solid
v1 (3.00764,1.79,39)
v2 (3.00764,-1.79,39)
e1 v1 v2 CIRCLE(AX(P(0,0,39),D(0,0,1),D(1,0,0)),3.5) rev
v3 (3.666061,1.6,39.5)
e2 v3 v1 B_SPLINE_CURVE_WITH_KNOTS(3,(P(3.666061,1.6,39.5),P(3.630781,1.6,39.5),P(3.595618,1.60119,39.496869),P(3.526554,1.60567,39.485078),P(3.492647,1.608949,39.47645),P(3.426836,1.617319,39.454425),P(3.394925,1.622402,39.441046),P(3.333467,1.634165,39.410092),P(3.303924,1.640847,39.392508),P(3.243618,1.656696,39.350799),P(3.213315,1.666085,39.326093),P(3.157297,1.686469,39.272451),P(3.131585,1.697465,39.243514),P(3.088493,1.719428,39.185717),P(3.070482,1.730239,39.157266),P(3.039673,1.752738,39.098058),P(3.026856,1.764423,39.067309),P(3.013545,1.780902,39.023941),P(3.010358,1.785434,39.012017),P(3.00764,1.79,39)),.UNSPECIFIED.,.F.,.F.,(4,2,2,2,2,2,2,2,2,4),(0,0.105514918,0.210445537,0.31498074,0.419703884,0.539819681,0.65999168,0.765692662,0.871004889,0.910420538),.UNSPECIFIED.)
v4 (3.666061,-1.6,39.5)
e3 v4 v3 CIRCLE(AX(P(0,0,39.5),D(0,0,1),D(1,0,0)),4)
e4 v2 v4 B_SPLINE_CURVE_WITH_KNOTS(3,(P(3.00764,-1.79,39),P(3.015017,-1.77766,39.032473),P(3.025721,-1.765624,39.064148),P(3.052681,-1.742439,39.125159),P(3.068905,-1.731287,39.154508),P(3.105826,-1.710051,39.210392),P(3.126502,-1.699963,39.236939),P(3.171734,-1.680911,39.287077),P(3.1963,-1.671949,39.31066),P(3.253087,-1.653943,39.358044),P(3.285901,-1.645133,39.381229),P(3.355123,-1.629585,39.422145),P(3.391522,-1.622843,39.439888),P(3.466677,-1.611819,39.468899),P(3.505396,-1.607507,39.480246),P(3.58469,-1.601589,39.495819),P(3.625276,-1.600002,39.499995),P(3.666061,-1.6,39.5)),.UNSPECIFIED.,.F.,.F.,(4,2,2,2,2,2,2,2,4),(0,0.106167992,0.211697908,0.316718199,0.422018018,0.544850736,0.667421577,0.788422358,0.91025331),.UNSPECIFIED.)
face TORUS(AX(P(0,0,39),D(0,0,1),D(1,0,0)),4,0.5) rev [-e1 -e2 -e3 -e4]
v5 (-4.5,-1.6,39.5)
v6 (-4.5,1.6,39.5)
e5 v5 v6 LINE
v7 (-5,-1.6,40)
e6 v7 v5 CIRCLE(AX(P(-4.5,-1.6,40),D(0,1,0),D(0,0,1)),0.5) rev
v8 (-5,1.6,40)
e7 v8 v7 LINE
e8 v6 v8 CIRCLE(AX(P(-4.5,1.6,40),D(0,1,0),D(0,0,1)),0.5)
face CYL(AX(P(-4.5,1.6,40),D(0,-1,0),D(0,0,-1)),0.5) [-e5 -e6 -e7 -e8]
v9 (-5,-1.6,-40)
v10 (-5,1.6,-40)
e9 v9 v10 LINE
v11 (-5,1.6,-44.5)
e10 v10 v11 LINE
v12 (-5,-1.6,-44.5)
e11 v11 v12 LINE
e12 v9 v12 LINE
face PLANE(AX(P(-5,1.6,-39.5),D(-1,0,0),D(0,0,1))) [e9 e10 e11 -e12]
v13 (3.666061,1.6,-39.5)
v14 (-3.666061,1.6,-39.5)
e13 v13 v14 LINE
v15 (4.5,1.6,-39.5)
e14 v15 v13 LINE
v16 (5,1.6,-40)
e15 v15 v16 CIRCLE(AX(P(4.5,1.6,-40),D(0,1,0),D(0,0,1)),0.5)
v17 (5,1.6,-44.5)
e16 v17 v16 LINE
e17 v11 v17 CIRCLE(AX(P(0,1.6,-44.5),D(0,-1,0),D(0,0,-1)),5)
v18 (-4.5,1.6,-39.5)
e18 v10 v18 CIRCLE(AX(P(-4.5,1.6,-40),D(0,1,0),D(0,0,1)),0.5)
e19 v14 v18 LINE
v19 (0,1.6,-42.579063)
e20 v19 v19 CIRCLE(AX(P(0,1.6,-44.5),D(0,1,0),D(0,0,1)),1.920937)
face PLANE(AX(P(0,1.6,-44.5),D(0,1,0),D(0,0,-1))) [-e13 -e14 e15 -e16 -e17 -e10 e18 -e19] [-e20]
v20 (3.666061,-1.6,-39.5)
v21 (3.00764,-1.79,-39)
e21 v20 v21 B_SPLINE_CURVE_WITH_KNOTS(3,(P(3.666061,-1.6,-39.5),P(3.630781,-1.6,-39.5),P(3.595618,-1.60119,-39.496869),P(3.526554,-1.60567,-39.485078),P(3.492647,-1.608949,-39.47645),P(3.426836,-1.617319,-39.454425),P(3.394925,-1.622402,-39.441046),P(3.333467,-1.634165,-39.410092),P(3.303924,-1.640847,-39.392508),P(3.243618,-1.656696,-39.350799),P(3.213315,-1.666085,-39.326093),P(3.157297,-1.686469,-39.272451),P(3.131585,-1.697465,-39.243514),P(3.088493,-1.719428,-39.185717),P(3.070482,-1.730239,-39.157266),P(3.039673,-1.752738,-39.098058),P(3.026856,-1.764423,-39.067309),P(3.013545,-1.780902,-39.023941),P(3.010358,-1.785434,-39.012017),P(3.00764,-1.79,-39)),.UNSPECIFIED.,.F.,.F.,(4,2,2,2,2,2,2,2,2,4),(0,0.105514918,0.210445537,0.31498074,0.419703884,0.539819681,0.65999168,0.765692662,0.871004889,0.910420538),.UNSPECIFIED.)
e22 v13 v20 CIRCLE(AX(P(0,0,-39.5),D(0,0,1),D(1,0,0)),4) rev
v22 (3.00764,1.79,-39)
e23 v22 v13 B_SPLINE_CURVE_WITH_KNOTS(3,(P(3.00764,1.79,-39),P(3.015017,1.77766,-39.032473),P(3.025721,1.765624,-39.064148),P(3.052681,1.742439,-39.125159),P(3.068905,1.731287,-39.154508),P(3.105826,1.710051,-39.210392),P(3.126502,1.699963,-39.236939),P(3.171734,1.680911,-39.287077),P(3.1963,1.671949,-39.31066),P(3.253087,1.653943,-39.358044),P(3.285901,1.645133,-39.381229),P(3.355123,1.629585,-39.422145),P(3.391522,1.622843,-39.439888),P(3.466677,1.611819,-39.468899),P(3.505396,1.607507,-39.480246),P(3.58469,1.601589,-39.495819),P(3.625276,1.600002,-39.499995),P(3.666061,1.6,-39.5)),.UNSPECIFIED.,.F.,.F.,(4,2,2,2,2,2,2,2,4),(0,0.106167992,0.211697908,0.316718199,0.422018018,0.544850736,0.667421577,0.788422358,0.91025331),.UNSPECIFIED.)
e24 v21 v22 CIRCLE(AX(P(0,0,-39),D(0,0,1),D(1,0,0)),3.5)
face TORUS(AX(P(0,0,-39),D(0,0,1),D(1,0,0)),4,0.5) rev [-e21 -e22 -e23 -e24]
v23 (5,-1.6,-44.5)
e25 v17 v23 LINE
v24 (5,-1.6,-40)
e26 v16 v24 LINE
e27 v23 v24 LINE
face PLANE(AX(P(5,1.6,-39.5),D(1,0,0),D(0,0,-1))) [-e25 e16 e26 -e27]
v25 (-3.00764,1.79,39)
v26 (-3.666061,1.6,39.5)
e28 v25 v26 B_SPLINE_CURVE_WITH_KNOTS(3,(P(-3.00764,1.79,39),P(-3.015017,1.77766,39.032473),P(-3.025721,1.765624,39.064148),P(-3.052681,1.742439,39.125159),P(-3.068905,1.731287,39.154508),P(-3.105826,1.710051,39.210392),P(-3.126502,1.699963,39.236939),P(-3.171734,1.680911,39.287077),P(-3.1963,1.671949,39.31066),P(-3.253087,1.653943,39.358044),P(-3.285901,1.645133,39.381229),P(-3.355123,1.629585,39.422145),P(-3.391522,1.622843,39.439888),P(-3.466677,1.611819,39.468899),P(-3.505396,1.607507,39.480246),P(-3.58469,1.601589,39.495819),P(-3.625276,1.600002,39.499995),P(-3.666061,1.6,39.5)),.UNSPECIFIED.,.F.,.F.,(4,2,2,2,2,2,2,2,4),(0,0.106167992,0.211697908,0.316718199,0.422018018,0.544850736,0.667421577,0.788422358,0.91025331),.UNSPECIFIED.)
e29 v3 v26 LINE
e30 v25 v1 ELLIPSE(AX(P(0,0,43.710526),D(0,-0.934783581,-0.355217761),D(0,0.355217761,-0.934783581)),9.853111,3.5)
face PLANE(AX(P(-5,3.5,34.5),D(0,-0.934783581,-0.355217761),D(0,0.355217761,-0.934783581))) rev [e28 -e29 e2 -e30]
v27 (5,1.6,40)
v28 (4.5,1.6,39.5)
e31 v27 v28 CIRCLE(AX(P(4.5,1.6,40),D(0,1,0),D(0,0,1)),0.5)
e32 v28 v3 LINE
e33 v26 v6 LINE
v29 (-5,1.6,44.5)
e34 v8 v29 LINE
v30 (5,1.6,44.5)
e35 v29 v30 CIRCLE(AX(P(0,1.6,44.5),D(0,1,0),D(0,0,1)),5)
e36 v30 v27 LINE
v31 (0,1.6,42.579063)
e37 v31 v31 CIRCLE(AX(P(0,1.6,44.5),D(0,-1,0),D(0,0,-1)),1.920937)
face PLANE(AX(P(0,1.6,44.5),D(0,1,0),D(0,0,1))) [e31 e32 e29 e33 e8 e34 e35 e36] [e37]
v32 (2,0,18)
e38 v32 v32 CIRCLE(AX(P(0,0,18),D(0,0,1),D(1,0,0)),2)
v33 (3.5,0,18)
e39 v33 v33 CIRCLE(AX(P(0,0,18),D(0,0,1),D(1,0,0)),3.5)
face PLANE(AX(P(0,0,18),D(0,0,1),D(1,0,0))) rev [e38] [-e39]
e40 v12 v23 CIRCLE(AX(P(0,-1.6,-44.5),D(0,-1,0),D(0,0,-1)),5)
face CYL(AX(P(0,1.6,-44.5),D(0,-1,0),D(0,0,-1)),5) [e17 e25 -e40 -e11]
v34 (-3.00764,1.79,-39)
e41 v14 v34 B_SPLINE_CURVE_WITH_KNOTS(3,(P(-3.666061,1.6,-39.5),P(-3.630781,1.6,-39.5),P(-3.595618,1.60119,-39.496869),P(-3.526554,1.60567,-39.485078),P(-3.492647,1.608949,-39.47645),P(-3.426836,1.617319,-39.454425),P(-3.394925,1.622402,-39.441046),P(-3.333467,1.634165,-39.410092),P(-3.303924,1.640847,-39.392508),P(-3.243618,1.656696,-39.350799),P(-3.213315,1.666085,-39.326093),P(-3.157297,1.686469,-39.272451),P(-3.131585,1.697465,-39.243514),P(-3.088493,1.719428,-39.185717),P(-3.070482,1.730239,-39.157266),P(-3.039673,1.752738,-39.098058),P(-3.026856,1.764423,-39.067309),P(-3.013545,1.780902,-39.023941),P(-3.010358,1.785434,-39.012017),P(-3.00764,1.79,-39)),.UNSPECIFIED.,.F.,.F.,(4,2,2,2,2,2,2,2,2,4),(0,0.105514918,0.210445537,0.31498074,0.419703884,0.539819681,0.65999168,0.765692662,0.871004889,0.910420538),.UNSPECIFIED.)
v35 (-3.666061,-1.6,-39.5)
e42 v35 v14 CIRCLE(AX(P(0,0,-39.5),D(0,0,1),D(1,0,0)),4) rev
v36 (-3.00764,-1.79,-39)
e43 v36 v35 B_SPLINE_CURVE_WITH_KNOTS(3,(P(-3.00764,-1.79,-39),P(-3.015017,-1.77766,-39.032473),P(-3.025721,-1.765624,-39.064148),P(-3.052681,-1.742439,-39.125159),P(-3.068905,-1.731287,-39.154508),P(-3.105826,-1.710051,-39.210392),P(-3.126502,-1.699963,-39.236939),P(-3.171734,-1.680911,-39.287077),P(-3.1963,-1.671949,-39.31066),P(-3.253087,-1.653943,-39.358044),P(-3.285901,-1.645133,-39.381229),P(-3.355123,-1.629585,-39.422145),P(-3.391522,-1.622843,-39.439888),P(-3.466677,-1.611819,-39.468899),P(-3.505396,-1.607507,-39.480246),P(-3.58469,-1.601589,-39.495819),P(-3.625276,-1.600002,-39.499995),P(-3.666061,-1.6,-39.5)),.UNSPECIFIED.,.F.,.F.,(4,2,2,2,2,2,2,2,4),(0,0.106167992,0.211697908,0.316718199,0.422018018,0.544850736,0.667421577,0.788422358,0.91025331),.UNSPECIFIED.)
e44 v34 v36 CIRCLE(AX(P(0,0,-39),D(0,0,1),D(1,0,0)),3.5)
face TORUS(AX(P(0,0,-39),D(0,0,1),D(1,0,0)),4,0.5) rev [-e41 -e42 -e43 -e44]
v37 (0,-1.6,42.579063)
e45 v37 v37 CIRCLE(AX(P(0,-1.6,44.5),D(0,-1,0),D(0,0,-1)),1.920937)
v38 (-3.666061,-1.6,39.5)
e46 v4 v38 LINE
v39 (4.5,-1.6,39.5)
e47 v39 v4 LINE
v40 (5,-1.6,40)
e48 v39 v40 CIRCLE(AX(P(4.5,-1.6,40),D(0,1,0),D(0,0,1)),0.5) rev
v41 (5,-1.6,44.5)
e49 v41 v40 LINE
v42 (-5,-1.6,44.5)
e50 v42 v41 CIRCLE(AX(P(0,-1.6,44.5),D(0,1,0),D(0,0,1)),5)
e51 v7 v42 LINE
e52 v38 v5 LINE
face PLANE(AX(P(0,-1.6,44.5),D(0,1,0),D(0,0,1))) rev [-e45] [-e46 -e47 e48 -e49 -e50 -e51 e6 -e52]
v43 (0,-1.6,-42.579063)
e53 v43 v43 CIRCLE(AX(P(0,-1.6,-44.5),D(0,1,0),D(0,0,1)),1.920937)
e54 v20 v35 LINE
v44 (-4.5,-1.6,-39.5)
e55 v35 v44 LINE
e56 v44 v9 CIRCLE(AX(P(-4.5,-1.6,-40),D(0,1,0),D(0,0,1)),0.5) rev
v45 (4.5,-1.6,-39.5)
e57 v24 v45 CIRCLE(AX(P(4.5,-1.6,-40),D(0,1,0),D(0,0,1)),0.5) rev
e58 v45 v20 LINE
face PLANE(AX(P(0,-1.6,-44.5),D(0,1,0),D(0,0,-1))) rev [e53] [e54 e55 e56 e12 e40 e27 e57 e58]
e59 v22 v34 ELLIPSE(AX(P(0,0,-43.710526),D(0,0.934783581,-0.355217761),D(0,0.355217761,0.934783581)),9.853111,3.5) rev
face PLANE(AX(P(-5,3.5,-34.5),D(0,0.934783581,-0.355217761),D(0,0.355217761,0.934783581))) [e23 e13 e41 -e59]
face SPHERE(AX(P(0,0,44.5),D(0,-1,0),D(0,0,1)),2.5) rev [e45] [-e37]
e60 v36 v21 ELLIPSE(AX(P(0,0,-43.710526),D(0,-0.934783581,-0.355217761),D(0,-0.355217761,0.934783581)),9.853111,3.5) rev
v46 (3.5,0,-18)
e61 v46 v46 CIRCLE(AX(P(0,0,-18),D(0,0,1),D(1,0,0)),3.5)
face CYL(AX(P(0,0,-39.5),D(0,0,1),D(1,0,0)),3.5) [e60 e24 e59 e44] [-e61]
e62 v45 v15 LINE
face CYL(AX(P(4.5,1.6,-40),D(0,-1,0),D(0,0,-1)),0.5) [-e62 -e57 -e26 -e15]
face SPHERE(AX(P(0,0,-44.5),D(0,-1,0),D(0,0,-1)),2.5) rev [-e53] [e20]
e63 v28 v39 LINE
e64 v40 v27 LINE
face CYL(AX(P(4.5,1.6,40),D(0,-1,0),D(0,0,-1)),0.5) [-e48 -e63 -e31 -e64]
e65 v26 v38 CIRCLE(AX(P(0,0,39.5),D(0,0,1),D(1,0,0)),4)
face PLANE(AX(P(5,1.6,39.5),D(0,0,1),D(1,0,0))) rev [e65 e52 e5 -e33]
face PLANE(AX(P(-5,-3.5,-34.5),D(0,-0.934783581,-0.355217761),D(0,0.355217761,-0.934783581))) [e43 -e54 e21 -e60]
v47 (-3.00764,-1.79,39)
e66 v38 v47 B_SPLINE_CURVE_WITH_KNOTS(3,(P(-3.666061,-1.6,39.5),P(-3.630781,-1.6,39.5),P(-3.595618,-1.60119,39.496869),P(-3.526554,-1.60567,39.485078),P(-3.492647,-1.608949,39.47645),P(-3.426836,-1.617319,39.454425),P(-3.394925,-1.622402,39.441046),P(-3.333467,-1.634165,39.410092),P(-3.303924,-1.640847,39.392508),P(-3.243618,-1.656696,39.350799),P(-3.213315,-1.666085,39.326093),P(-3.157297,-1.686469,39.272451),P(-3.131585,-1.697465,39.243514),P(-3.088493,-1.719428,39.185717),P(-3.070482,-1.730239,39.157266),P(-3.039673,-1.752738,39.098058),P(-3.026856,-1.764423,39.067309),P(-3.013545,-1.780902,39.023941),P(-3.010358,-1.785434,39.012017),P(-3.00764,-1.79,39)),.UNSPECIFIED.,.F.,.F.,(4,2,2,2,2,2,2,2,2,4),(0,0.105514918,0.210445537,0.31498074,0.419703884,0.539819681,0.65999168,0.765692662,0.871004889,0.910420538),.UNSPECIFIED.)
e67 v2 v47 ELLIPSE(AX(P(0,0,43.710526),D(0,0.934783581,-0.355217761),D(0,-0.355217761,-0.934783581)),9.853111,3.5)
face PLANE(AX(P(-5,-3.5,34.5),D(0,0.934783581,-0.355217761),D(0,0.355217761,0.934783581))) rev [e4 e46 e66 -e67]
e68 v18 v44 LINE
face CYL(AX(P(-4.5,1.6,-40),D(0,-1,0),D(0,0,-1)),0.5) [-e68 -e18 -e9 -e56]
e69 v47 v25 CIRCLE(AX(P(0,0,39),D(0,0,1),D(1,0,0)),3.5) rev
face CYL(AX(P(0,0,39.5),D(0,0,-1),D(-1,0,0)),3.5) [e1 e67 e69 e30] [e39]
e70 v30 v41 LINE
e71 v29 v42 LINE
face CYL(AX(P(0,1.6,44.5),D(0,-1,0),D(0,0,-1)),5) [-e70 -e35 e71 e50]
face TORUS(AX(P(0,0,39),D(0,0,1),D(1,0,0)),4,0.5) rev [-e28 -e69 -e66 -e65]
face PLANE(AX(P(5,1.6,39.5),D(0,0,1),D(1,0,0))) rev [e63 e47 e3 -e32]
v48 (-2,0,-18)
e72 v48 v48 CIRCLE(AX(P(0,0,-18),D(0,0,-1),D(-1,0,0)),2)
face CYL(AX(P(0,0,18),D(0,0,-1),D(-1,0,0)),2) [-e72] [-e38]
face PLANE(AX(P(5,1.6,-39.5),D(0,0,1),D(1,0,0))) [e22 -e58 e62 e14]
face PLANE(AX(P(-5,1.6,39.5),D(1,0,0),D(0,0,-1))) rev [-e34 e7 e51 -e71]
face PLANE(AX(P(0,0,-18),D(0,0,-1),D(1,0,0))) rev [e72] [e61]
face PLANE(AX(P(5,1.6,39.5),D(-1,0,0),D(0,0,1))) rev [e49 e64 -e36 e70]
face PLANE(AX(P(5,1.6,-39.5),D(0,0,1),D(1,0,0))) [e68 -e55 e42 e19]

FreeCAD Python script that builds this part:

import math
import FreeCAD as App
import Part
import Sketcher
from FreeCAD import Vector


def edges_at(feature, points):
    """Names of the edges that pass closest to the given points."""
    edges = feature.Shape.Edges
    near = lambda p: min(range(len(edges)), key=lambda i: edges[i].distToShape(Part.Vertex(*p))[0])
    return sorted({f"Edge{near(p) + 1}" for p in points})


def add_polygon(sketch, points):
    """Adds a closed chain of lines whose ends are joined by coincident constraints."""
    first, n = sketch.GeometryCount, len(points)
    for a, b in zip(points, points[1:] + points[:1]):
        sketch.addGeometry(Part.LineSegment(App.Vector(*a, 0), App.Vector(*b, 0)), False)
    for i in range(n):
        sketch.addConstraint(Sketcher.Constraint("Coincident", first + i, 2, first + (i + 1) % n, 1))

doc = App.newDocument("Part")
params = doc.addObject("Spreadsheet::Sheet", "Params")
for row, (alias, value) in enumerate([
    ("sketch1_diameter", "4 mm"),
    ("pad1_length", "18 mm"),
    ("sketch2_diameter", "7 mm"),
    ("pad2_length", "21.5 mm"),
    ("sketch3_radius", "5 mm"),
    ("sketch3_height", "5 mm"),
    ("pad3_length", "3.2 mm"),
    ("sketch4_height", "5 mm"),
    ("sketch4_width", "1.9 mm"),
    ("pocket1_length", "12 mm"),
    ("fillet_radius", "0.5 mm"),
    ("sketch5_radius", "2.5 mm"),
    ("sketch5_width", "3.2 mm"),
    ("groove_angle", "360 deg"),
    ("fillet2_radius", "0.5 mm"),
], start=1):
    params.set(f"A{row}", alias)
    params.set(f"B{row}", "=" + value)
    params.setAlias(f"B{row}", alias)

body = doc.addObject("PartDesign::Body", "Body")

# Sketch on XY plane
sketch1 = body.newObject("Sketcher::SketchObject", "Sketch")
sketch1.AttachmentSupport = (doc.getObject("XY_Plane"), [""])
sketch1.MapMode = "FlatFace"
sketch1.addGeometry(Part.Circle(Vector(0, 0, 0), Vector(0, 0, 1), 2), False)
sketch1.addConstraint([
    Sketcher.Constraint("Coincident", 0, 3, -1, 1),
    Sketcher.Constraint("Diameter", 0, 4.0),
])
sketch1.setExpression("Constraints[1]", "Params.sketch1_diameter")
pad1 = body.newObject("PartDesign::Pad", "Pad")
pad1.Profile = sketch1
pad1.setExpression("Length", "Params.pad1_length")

# Sketch on XY plane
sketch2 = body.newObject("Sketcher::SketchObject", "Sketch001")
sketch2.AttachmentSupport = (doc.getObject("XY_Plane"), [""])
sketch2.MapMode = "FlatFace"
sketch2.AttachmentOffset = App.Placement(Vector(0, 0, 18), App.Rotation())
sketch2.addGeometry(Part.Circle(Vector(0, 0, 0), Vector(0, 0, 1), 3.5), False)
sketch2.addConstraint([
    Sketcher.Constraint("Coincident", 0, 3, -1, 1),
    Sketcher.Constraint("Diameter", 0, 7.0),
])
sketch2.setExpression("Constraints[1]", "Params.sketch2_diameter")
pad2 = body.newObject("PartDesign::Pad", "Pad001")
pad2.Profile = sketch2
pad2.setExpression("Length", "Params.pad2_length")

# Sketch on XZ plane
sketch3 = body.newObject("Sketcher::SketchObject", "Sketch002")
sketch3.AttachmentSupport = (doc.getObject("XZ_Plane"), [""])
sketch3.MapMode = "FlatFace"
sketch3.addGeometry([
    Part.LineSegment(Vector(5, 40, 0), Vector(-5, 40, 0)),
    Part.LineSegment(Vector(-5, 40, 0), Vector(-5, 44, 0)),
    Part.ArcOfCircle(Part.Circle(Vector(0, 44, 0), Vector(0, 0, 1), 5), math.radians(0), math.radians(180)),
    Part.LineSegment(Vector(5, 44, 0), Vector(5, 40, 0)),
], False)
sketch3.addConstraint([
    Sketcher.Constraint("Coincident", 0, 2, 1, 1),
    Sketcher.Constraint("Tangent", 1, 2, 2, 2),
    Sketcher.Constraint("Tangent", 2, 1, 3, 1),
    Sketcher.Constraint("Coincident", 3, 2, 0, 1),
    Sketcher.Constraint("Horizontal", 0),
    Sketcher.Constraint("Vertical", 1),
    Sketcher.Constraint("Vertical", 3),
    Sketcher.Constraint("PointOnObject", 2, 3, -2),
    Sketcher.Constraint("Radius", 2, 5.0),
    Sketcher.Constraint("DistanceY", 1, 1, 1, 2, 5.0),
    Sketcher.Constraint("DistanceY", -1, 1, 2, 3, 44.5),
])
sketch3.setExpression("Constraints[8]", "Params.sketch3_radius")
sketch3.setExpression("Constraints[9]", "Params.sketch3_height")
pad3 = body.newObject("PartDesign::Pad", "Pad002")
pad3.Profile = sketch3
pad3.setExpression("Length", "Params.pad3_length")
pad3.Midplane = True

# Sketch on YZ plane
sketch4 = body.newObject("Sketcher::SketchObject", "Sketch003")
sketch4.AttachmentSupport = (doc.getObject("YZ_Plane"), [""])
sketch4.MapMode = "FlatFace"
add_polygon(sketch4, [(-3.5, 34.5), (-1.6, 39.5), (-3.5, 39.5)])  # lines 0-2
add_polygon(sketch4, [(1.6, 39.5), (3.5, 34.5), (3.5, 39.5)])  # lines 3-5
sketch4.addConstraint([
    Sketcher.Constraint("Horizontal", 1),
    Sketcher.Constraint("Vertical", 2),
    Sketcher.Constraint("Vertical", 4),
    Sketcher.Constraint("Horizontal", 5),
    Sketcher.Constraint("Symmetric", 2, 2, 3, 2, -2),
    Sketcher.Constraint("Symmetric", 0, 2, 5, 2, -2),
    Sketcher.Constraint("DistanceY", 2, 2, 2, 1, 5.0),
    Sketcher.Constraint("DistanceX", 1, 2, 1, 1, 1.9),
    Sketcher.Constraint("DistanceX", 2, 2, 3, 2, 7.0),
    Sketcher.Constraint("DistanceY", -1, 1, 0, 2, 39.5),
])
sketch4.setExpression("Constraints[12]", "Params.sketch4_height")
sketch4.setExpression("Constraints[13]", "Params.sketch4_width")
pocket1 = body.newObject("PartDesign::Pocket", "Pocket")
pocket1.Profile = sketch4
pocket1.setExpression("Length", "Params.pocket1_length")
pocket1.Midplane = True
doc.recompute()

fillet = body.newObject("PartDesign::Fillet", "Fillet")
fillet.Base = (pocket1, edges_at(pocket1, [
    (-5, 0, 39.5),
    (3.402, -0.823, 39.5),
    (-3.5, 0, 39.5),
    (5, 0, 39.5),
]))
fillet.setExpression("Radius", "Params.fillet_radius")

# Sketch on YZ plane
sketch5 = body.newObject("Sketcher::SketchObject", "Sketch004")
sketch5.AttachmentSupport = (doc.getObject("YZ_Plane"), [""])
sketch5.MapMode = "FlatFace"
sketch5.addGeometry([
    Part.LineSegment(Vector(-1.6, 46.4, 0), Vector(-1.6, 44.5, 0)),
    Part.LineSegment(Vector(-1.6, 44.5, 0), Vector(1.6, 44.5, 0)),
    Part.LineSegment(Vector(1.6, 44.5, 0), Vector(1.6, 46.4, 0)),
    Part.ArcOfCircle(Part.Circle(Vector(0, 44.5, 0), Vector(0, 0, 1), 2.5), math.radians(50), math.radians(130)),
], False)
sketch5.addGeometry(Part.LineSegment(Vector(-1.6, 44.5, 0), Vector(1.6, 44.5, 0)), True)  # axis
sketch5.addConstraint([
    Sketcher.Constraint("Coincident", 0, 2, 1, 1),
    Sketcher.Constraint("Coincident", 1, 2, 2, 1),
    Sketcher.Constraint("Coincident", 2, 2, 3, 1),
    Sketcher.Constraint("Coincident", 3, 2, 0, 1),
    Sketcher.Constraint("Vertical", 0),
    Sketcher.Constraint("Horizontal", 1),
    Sketcher.Constraint("Vertical", 2),
    Sketcher.Constraint("Horizontal", 4),
    Sketcher.Constraint("Coincident", 4, 1, 0, 2),
    Sketcher.Constraint("Symmetric", 2, 2, 3, 2, -2),
    Sketcher.Constraint("Horizontal", 3, 3, 0, 2),
    Sketcher.Constraint("Vertical", 2, 2, 4, 2),
    Sketcher.Constraint("Radius", 3, 2.5),
    Sketcher.Constraint("DistanceX", 1, 1, 1, 2, 3.2),
    Sketcher.Constraint("DistanceY", -1, 1, 3, 3, 44.5),
])
sketch5.setExpression("Constraints[12]", "Params.sketch5_radius")
sketch5.setExpression("Constraints[13]", "Params.sketch5_width")
groove = body.newObject("PartDesign::Groove", "Groove")
groove.Profile = sketch5
groove.ReferenceAxis = (sketch5, ["Axis0"])
groove.setExpression("Angle", "Params.groove_angle")
doc.recompute()

mirrored = body.newObject("PartDesign::Mirrored", "Mirrored")
mirrored.Originals = [pad1, pad2, pad3, pocket1, groove]
mirrored.MirrorPlane = (doc.getObject("XY_Plane"), [""])
body.Tip = mirrored
doc.recompute()

fillet2 = body.newObject("PartDesign::Fillet", "Fillet001")
fillet2.Base = (mirrored, edges_at(mirrored, [
    (-5, 0, -39.5),
    (3.402, -0.823, -39.5),
    (-3.5, 0, -39.5),
    (5, 0, -39.5),
]))
fillet2.setExpression("Radius", "Params.fillet2_radius")

doc.recompute()
